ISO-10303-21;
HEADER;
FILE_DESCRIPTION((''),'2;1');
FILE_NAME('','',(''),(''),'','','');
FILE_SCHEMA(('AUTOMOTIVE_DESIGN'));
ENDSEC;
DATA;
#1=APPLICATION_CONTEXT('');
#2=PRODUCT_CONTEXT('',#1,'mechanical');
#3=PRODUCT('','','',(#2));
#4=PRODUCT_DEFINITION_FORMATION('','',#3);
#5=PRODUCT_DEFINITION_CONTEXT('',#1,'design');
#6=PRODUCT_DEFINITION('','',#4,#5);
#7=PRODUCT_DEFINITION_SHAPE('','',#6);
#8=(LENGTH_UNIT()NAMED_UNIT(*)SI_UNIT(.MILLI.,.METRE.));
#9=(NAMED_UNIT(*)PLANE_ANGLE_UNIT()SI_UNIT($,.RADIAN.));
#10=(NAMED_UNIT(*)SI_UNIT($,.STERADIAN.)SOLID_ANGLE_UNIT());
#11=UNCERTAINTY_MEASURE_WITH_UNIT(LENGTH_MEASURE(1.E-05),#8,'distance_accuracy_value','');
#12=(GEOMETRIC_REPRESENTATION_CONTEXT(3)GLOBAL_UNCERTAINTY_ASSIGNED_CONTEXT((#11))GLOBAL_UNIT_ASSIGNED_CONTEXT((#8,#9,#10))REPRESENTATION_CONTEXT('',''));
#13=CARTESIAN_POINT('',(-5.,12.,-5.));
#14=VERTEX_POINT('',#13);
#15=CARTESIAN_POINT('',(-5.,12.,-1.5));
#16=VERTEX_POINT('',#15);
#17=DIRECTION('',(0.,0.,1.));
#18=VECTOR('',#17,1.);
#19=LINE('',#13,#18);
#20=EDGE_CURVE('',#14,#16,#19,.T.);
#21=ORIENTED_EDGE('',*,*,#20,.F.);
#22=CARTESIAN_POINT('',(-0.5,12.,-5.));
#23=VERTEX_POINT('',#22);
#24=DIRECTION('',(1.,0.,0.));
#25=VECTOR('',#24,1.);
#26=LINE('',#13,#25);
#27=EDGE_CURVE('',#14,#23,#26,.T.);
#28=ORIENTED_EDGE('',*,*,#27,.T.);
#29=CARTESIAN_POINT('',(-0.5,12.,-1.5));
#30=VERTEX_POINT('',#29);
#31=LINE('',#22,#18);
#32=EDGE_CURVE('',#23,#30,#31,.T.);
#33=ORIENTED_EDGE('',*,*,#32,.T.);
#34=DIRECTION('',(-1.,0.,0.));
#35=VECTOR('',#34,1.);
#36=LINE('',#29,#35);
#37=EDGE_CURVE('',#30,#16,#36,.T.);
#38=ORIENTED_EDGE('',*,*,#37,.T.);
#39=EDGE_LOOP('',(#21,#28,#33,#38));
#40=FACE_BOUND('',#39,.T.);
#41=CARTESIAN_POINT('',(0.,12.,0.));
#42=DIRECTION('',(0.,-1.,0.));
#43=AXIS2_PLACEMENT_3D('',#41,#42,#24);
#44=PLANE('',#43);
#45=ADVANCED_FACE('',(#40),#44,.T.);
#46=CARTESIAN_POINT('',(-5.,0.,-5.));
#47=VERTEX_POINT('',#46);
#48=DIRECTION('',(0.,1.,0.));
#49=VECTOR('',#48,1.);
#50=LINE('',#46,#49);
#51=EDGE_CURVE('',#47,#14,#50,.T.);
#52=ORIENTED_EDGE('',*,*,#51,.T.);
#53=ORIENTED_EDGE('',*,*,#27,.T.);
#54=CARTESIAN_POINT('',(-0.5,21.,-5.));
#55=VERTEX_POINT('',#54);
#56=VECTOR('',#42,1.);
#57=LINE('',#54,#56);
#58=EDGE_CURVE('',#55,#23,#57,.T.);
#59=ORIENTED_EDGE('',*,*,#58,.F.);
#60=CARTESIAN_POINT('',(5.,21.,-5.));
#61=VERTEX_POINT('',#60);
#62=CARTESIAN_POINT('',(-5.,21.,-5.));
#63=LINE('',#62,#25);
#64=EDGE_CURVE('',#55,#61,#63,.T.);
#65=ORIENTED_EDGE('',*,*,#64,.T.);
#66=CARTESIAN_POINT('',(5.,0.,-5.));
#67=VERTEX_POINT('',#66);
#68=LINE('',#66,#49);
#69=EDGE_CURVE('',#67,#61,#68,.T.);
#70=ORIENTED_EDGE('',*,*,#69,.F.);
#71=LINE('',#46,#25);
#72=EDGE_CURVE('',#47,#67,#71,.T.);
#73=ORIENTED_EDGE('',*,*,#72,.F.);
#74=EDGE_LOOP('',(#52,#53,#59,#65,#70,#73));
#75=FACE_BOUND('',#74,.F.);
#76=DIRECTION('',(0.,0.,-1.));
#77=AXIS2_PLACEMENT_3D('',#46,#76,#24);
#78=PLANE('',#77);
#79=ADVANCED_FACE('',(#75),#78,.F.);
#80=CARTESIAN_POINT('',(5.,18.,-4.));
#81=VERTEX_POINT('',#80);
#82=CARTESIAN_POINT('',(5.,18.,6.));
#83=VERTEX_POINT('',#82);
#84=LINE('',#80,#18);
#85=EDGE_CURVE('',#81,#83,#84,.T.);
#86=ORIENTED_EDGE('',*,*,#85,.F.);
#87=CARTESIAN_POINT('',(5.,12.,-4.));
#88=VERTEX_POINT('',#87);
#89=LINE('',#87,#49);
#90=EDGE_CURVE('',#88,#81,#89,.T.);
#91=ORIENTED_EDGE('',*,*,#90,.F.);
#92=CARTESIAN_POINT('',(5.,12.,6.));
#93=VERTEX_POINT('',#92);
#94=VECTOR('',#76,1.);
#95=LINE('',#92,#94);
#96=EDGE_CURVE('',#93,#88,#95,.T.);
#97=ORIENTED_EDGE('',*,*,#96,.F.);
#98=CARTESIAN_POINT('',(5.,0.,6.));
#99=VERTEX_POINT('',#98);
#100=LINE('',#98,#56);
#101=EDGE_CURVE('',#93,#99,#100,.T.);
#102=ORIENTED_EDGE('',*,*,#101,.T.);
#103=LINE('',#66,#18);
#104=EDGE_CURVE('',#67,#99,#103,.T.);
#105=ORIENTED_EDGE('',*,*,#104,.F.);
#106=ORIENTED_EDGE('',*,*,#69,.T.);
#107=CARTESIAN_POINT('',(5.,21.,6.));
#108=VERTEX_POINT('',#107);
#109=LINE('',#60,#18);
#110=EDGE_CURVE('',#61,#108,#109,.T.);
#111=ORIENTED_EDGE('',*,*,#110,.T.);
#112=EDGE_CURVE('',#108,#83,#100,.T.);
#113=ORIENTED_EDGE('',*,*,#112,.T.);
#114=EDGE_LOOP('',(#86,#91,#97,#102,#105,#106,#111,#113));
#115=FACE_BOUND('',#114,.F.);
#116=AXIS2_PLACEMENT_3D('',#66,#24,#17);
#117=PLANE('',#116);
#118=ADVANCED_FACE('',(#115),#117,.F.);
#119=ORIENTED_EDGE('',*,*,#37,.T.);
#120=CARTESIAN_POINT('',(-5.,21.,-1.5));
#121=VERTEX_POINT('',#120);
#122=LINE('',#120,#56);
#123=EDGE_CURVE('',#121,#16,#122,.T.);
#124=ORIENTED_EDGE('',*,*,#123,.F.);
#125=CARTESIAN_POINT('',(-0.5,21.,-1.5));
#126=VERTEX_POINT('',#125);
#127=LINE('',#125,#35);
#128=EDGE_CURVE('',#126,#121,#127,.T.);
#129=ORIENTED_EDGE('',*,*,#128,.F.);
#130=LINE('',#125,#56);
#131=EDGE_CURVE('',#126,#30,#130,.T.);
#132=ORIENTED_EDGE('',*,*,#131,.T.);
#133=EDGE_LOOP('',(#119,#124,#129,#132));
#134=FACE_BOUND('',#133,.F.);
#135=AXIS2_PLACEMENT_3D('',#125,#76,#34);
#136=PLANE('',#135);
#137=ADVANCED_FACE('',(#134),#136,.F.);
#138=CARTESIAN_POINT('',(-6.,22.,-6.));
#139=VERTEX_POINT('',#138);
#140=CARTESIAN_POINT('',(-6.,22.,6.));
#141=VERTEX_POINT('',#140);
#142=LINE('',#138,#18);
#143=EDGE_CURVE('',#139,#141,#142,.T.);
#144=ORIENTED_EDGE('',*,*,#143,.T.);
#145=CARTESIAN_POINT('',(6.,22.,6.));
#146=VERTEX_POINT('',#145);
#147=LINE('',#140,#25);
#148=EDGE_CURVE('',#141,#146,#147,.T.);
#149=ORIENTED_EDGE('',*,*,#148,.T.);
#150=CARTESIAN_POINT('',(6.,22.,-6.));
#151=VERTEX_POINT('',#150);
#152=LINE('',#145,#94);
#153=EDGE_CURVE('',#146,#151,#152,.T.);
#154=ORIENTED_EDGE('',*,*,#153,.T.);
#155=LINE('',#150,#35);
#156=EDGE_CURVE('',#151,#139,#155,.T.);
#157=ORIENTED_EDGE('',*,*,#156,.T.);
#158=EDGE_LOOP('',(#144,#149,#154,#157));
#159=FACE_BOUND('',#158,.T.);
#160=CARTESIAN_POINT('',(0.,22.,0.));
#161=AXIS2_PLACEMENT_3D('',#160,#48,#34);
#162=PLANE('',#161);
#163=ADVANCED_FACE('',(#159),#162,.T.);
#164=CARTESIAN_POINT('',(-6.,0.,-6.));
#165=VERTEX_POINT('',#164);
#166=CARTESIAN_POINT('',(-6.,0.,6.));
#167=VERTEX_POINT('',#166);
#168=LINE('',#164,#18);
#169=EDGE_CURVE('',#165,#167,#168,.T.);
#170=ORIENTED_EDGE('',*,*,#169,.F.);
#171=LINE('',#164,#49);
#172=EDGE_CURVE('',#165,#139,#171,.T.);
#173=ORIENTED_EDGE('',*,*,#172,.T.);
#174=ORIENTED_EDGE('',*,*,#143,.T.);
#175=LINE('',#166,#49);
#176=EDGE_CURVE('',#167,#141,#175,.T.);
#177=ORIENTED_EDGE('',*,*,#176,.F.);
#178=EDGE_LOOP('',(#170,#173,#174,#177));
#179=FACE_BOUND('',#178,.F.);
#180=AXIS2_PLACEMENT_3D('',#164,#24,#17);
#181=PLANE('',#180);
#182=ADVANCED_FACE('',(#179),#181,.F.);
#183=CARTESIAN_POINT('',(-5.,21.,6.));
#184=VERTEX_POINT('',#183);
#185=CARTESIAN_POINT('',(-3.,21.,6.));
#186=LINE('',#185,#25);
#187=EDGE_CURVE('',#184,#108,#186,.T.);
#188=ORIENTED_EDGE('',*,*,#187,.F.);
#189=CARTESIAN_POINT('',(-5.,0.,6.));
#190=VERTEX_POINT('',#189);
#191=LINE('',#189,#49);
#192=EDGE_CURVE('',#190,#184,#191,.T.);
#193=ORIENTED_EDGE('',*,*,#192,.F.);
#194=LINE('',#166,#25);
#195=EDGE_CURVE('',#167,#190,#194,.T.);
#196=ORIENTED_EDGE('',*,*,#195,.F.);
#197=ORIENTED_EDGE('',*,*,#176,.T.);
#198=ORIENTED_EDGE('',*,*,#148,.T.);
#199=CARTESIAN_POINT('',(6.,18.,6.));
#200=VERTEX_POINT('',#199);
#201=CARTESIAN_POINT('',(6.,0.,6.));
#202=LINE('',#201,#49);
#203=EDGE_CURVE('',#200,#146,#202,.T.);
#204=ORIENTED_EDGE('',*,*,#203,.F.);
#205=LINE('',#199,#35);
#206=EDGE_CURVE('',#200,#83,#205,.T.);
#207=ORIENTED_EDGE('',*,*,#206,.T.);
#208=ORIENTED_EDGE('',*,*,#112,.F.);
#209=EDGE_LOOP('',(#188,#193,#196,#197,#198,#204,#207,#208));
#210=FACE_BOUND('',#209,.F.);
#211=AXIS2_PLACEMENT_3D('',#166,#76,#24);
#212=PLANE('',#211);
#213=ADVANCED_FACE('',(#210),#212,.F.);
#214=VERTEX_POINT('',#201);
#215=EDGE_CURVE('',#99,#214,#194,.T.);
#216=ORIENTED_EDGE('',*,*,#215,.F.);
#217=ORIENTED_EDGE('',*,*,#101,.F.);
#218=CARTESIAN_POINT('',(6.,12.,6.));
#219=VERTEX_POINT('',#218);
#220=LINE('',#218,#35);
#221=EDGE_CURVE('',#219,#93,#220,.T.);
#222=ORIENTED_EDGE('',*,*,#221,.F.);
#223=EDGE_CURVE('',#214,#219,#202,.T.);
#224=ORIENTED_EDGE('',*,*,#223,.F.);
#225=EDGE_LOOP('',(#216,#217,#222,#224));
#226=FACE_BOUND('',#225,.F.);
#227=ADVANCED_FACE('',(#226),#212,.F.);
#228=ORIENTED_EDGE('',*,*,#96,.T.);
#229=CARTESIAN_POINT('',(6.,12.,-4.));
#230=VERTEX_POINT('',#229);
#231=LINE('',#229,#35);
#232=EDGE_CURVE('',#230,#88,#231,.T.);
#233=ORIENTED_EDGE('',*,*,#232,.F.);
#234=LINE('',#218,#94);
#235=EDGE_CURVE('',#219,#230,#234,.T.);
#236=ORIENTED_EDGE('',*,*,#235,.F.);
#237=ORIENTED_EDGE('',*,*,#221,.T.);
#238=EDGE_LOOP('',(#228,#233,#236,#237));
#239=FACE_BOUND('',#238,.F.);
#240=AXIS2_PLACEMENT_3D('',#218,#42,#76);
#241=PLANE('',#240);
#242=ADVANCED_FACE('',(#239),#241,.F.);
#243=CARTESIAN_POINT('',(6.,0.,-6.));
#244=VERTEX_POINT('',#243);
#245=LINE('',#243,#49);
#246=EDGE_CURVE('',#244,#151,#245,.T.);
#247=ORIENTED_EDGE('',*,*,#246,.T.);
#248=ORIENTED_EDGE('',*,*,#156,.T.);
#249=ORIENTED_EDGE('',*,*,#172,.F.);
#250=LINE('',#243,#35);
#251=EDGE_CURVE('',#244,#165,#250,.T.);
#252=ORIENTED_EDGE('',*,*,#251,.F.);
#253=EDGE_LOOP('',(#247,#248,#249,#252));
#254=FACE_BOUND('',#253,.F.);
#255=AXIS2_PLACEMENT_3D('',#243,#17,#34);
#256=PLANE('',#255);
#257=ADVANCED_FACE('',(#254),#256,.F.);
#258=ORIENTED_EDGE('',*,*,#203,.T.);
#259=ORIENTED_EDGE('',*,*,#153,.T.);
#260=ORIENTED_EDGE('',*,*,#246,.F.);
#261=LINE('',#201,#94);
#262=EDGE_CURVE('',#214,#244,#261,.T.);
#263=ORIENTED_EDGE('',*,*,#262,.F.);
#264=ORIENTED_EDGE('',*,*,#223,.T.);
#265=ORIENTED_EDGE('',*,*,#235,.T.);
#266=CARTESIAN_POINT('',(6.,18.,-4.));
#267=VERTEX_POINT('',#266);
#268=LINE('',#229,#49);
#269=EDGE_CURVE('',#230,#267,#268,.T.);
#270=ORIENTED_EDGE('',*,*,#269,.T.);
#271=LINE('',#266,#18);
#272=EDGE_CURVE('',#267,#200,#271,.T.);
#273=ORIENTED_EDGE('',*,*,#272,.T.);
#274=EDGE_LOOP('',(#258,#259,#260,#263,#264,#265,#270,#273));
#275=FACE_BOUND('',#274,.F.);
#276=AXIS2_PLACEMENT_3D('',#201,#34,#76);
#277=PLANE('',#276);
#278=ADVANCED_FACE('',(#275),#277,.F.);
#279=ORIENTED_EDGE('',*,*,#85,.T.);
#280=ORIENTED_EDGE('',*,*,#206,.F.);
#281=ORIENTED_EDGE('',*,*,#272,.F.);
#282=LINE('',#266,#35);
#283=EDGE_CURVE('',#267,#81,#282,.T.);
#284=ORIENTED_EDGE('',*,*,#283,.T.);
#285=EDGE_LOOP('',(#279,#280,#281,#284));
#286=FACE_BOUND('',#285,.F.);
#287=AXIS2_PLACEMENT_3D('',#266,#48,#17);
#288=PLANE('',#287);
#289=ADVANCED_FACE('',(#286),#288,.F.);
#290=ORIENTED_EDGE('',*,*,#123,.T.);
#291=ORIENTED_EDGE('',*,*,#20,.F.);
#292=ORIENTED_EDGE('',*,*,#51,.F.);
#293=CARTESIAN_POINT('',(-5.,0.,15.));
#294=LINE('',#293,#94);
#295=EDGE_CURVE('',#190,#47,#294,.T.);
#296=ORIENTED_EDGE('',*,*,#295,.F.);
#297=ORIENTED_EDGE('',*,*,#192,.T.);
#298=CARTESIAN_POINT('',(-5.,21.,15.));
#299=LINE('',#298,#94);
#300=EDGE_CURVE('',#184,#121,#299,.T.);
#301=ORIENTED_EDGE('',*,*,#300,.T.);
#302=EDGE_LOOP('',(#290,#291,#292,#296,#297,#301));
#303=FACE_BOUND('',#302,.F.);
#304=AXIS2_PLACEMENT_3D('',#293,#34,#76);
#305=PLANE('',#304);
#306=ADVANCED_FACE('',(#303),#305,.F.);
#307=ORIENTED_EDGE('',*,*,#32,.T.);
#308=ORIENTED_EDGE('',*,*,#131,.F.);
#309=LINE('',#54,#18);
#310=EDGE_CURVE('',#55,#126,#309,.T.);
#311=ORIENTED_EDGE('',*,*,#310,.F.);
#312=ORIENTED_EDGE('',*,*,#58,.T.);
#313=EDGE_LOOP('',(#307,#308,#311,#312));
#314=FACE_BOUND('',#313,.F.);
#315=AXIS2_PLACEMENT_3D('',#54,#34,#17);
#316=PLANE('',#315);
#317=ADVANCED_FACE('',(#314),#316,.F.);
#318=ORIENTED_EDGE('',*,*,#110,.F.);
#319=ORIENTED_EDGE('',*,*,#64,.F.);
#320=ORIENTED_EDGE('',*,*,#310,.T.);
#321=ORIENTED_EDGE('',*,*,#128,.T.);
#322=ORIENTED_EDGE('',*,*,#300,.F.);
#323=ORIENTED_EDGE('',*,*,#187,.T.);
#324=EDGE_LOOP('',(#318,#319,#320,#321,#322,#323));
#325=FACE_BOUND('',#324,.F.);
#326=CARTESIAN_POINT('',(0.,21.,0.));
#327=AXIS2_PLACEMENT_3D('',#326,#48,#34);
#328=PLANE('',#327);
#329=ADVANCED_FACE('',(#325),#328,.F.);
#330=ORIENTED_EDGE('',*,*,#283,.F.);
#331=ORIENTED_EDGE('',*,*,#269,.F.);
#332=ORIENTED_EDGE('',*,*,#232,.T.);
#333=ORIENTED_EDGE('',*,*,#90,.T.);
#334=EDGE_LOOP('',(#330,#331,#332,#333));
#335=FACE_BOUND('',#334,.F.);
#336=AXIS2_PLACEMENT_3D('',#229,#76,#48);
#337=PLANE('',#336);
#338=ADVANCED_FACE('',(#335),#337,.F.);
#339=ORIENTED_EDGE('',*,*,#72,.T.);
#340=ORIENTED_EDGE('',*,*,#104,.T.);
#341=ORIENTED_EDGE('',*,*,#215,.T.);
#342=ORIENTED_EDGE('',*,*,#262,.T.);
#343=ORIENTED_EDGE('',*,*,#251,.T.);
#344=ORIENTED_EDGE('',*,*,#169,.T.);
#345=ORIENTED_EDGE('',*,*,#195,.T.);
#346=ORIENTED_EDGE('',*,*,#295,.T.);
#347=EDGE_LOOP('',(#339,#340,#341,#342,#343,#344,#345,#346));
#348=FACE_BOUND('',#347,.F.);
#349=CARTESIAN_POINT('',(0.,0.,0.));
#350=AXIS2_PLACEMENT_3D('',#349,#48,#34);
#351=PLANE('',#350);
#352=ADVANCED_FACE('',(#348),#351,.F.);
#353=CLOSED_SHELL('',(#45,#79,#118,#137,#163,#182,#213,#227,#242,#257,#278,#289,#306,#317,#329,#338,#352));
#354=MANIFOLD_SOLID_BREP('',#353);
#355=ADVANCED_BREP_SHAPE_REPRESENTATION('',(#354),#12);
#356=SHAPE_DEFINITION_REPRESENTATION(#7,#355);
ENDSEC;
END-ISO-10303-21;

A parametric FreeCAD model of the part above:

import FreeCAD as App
import Part
import Sketcher

doc = App.newDocument("Part")
body = doc.addObject("PartDesign::Body", "Body")

# Sketch on XZ plane
sketch1 = body.newObject("Sketcher::SketchObject", "Sketch")
sketch1.AttachmentSupport = (doc.getObject("XZ_Plane"), [""])
sketch1.MapMode = "FlatFace"
sketch1.addGeometry([
    Part.LineSegment(App.Vector(-6, -6, 0), App.Vector(-6, 6, 0)),
    Part.LineSegment(App.Vector(-6, 6, 0), App.Vector(6, 6, 0)),
    Part.LineSegment(App.Vector(6, 6, 0), App.Vector(6, -6, 0)),
    Part.LineSegment(App.Vector(6, -6, 0), App.Vector(-6, -6, 0)),
], False)
sketch1.addConstraint([
    Sketcher.Constraint("Coincident", 0, 2, 1, 1),
    Sketcher.Constraint("Coincident", 1, 2, 2, 1),
    Sketcher.Constraint("Coincident", 2, 2, 3, 1),
    Sketcher.Constraint("Coincident", 3, 2, 0, 1),
    Sketcher.Constraint("Vertical", 0),
    Sketcher.Constraint("Horizontal", 1),
    Sketcher.Constraint("Vertical", 2),
    Sketcher.Constraint("Horizontal", 3),
    Sketcher.Constraint("Symmetric", 0, 2, 2, 2, -1, 1),
    Sketcher.Constraint("Equal", 3, 0),
    Sketcher.Constraint("DistanceX", 1, 1, 1, 2, 12.0),
])
pad1 = body.newObject("PartDesign::Pad", "Pad")
pad1.Profile = sketch1
pad1.Length = 22
pad1.Reversed = True

# Sketch on XZ plane
sketch2 = body.newObject("Sketcher::SketchObject", "Sketch001")
sketch2.AttachmentSupport = (doc.getObject("XZ_Plane"), [""])
sketch2.MapMode = "FlatFace"
sketch2.addGeometry([
    Part.LineSegment(App.Vector(5, -5, 0), App.Vector(-5, -5, 0)),
    Part.LineSegment(App.Vector(-5, -5, 0), App.Vector(-5, 15, 0)),
    Part.LineSegment(App.Vector(-5, 15, 0), App.Vector(5, 15, 0)),
    Part.LineSegment(App.Vector(5, 15, 0), App.Vector(5, -5, 0)),
], False)
sketch2.addConstraint([
    Sketcher.Constraint("Coincident", 0, 2, 1, 1),
    Sketcher.Constraint("Coincident", 1, 2, 2, 1),
    Sketcher.Constraint("Coincident", 2, 2, 3, 1),
    Sketcher.Constraint("Coincident", 3, 2, 0, 1),
    Sketcher.Constraint("Horizontal", 0),
    Sketcher.Constraint("Vertical", 1),
    Sketcher.Constraint("Horizontal", 2),
    Sketcher.Constraint("Vertical", 3),
    Sketcher.Constraint("DistanceX", 0, 2, 0, 1, 10.0),
    Sketcher.Constraint("DistanceY", 1, 1, 1, 2, 20.0),
    Sketcher.Constraint("DistanceX", 0, 2, -1, 1, 5.0),
    Sketcher.Constraint("DistanceY", 0, 2, -1, 1, 5.0),
])
pocket1 = body.newObject("PartDesign::Pocket", "Pocket")
pocket1.Profile = sketch2
pocket1.Length = 21

# Sketch on YZ plane
sketch3 = body.newObject("Sketcher::SketchObject", "Sketch002")
sketch3.AttachmentSupport = (doc.getObject("YZ_Plane"), [""])
sketch3.MapMode = "FlatFace"
sketch3.AttachmentOffset = App.Placement(App.Vector(0, 0, 6), App.Rotation())
sketch3.addGeometry([
    Part.LineSegment(App.Vector(18, 6, 0), App.Vector(12, 6, 0)),
    Part.LineSegment(App.Vector(12, 6, 0), App.Vector(12, -4, 0)),
    Part.LineSegment(App.Vector(12, -4, 0), App.Vector(18, -4, 0)),
    Part.LineSegment(App.Vector(18, -4, 0), App.Vector(18, 6, 0)),
], False)
sketch3.addConstraint([
    Sketcher.Constraint("Coincident", 0, 2, 1, 1),
    Sketcher.Constraint("Coincident", 1, 2, 2, 1),
    Sketcher.Constraint("Coincident", 2, 2, 3, 1),
    Sketcher.Constraint("Coincident", 3, 2, 0, 1),
    Sketcher.Constraint("Horizontal", 0),
    Sketcher.Constraint("Vertical", 1),
    Sketcher.Constraint("Horizontal", 2),
    Sketcher.Constraint("Vertical", 3),
    Sketcher.Constraint("DistanceX", 0, 2, 0, 1, 6.0),
    Sketcher.Constraint("DistanceY", -1, 1, 0, 2, 6.0),
    Sketcher.Constraint("DistanceY", 1, 2, 1, 1, 10.0),
    Sketcher.Constraint("DistanceX", -1, 1, 0, 2, 12.0),
])
pocket2 = body.newObject("PartDesign::Pocket", "Pocket001")
pocket2.Profile = sketch3
pocket2.Length = 1

# Sketch on XZ plane
sketch4 = body.newObject("Sketcher::SketchObject", "Sketch003")
sketch4.AttachmentSupport = (doc.getObject("XZ_Plane"), [""])
sketch4.MapMode = "FlatFace"
sketch4.AttachmentOffset = App.Placement(App.Vector(0, 0, -21), App.Rotation())
sketch4.addGeometry([
    Part.LineSegment(App.Vector(-5, -1.5, 0), App.Vector(-5, -5, 0)),
    Part.LineSegment(App.Vector(-5, -5, 0), App.Vector(-0.5, -5, 0)),
    Part.LineSegment(App.Vector(-0.5, -5, 0), App.Vector(-0.5, -1.5, 0)),
    Part.LineSegment(App.Vector(-0.5, -1.5, 0), App.Vector(-5, -1.5, 0)),
], False)
sketch4.addConstraint([
    Sketcher.Constraint("Coincident", 0, 2, 1, 1),
    Sketcher.Constraint("Coincident", 1, 2, 2, 1),
    Sketcher.Constraint("Coincident", 2, 2, 3, 1),
    Sketcher.Constraint("Coincident", 3, 2, 0, 1),
    Sketcher.Constraint("Vertical", 0),
    Sketcher.Constraint("Horizontal", 1),
    Sketcher.Constraint("Vertical", 2),
    Sketcher.Constraint("Horizontal", 3),
    Sketcher.Constraint("DistanceX", 1, 1, 1, 2, 4.5),
    Sketcher.Constraint("DistanceY", 0, 2, 0, 1, 3.5),
    Sketcher.Constraint("DistanceX", 0, 2, -1, 1, 5.0),
    Sketcher.Constraint("DistanceY", 0, 2, -1, 1, 5.0),
])
pad2 = body.newObject("PartDesign::Pad", "Pad001")
pad2.Profile = sketch4
pad2.Length = 9

doc.recompute()
